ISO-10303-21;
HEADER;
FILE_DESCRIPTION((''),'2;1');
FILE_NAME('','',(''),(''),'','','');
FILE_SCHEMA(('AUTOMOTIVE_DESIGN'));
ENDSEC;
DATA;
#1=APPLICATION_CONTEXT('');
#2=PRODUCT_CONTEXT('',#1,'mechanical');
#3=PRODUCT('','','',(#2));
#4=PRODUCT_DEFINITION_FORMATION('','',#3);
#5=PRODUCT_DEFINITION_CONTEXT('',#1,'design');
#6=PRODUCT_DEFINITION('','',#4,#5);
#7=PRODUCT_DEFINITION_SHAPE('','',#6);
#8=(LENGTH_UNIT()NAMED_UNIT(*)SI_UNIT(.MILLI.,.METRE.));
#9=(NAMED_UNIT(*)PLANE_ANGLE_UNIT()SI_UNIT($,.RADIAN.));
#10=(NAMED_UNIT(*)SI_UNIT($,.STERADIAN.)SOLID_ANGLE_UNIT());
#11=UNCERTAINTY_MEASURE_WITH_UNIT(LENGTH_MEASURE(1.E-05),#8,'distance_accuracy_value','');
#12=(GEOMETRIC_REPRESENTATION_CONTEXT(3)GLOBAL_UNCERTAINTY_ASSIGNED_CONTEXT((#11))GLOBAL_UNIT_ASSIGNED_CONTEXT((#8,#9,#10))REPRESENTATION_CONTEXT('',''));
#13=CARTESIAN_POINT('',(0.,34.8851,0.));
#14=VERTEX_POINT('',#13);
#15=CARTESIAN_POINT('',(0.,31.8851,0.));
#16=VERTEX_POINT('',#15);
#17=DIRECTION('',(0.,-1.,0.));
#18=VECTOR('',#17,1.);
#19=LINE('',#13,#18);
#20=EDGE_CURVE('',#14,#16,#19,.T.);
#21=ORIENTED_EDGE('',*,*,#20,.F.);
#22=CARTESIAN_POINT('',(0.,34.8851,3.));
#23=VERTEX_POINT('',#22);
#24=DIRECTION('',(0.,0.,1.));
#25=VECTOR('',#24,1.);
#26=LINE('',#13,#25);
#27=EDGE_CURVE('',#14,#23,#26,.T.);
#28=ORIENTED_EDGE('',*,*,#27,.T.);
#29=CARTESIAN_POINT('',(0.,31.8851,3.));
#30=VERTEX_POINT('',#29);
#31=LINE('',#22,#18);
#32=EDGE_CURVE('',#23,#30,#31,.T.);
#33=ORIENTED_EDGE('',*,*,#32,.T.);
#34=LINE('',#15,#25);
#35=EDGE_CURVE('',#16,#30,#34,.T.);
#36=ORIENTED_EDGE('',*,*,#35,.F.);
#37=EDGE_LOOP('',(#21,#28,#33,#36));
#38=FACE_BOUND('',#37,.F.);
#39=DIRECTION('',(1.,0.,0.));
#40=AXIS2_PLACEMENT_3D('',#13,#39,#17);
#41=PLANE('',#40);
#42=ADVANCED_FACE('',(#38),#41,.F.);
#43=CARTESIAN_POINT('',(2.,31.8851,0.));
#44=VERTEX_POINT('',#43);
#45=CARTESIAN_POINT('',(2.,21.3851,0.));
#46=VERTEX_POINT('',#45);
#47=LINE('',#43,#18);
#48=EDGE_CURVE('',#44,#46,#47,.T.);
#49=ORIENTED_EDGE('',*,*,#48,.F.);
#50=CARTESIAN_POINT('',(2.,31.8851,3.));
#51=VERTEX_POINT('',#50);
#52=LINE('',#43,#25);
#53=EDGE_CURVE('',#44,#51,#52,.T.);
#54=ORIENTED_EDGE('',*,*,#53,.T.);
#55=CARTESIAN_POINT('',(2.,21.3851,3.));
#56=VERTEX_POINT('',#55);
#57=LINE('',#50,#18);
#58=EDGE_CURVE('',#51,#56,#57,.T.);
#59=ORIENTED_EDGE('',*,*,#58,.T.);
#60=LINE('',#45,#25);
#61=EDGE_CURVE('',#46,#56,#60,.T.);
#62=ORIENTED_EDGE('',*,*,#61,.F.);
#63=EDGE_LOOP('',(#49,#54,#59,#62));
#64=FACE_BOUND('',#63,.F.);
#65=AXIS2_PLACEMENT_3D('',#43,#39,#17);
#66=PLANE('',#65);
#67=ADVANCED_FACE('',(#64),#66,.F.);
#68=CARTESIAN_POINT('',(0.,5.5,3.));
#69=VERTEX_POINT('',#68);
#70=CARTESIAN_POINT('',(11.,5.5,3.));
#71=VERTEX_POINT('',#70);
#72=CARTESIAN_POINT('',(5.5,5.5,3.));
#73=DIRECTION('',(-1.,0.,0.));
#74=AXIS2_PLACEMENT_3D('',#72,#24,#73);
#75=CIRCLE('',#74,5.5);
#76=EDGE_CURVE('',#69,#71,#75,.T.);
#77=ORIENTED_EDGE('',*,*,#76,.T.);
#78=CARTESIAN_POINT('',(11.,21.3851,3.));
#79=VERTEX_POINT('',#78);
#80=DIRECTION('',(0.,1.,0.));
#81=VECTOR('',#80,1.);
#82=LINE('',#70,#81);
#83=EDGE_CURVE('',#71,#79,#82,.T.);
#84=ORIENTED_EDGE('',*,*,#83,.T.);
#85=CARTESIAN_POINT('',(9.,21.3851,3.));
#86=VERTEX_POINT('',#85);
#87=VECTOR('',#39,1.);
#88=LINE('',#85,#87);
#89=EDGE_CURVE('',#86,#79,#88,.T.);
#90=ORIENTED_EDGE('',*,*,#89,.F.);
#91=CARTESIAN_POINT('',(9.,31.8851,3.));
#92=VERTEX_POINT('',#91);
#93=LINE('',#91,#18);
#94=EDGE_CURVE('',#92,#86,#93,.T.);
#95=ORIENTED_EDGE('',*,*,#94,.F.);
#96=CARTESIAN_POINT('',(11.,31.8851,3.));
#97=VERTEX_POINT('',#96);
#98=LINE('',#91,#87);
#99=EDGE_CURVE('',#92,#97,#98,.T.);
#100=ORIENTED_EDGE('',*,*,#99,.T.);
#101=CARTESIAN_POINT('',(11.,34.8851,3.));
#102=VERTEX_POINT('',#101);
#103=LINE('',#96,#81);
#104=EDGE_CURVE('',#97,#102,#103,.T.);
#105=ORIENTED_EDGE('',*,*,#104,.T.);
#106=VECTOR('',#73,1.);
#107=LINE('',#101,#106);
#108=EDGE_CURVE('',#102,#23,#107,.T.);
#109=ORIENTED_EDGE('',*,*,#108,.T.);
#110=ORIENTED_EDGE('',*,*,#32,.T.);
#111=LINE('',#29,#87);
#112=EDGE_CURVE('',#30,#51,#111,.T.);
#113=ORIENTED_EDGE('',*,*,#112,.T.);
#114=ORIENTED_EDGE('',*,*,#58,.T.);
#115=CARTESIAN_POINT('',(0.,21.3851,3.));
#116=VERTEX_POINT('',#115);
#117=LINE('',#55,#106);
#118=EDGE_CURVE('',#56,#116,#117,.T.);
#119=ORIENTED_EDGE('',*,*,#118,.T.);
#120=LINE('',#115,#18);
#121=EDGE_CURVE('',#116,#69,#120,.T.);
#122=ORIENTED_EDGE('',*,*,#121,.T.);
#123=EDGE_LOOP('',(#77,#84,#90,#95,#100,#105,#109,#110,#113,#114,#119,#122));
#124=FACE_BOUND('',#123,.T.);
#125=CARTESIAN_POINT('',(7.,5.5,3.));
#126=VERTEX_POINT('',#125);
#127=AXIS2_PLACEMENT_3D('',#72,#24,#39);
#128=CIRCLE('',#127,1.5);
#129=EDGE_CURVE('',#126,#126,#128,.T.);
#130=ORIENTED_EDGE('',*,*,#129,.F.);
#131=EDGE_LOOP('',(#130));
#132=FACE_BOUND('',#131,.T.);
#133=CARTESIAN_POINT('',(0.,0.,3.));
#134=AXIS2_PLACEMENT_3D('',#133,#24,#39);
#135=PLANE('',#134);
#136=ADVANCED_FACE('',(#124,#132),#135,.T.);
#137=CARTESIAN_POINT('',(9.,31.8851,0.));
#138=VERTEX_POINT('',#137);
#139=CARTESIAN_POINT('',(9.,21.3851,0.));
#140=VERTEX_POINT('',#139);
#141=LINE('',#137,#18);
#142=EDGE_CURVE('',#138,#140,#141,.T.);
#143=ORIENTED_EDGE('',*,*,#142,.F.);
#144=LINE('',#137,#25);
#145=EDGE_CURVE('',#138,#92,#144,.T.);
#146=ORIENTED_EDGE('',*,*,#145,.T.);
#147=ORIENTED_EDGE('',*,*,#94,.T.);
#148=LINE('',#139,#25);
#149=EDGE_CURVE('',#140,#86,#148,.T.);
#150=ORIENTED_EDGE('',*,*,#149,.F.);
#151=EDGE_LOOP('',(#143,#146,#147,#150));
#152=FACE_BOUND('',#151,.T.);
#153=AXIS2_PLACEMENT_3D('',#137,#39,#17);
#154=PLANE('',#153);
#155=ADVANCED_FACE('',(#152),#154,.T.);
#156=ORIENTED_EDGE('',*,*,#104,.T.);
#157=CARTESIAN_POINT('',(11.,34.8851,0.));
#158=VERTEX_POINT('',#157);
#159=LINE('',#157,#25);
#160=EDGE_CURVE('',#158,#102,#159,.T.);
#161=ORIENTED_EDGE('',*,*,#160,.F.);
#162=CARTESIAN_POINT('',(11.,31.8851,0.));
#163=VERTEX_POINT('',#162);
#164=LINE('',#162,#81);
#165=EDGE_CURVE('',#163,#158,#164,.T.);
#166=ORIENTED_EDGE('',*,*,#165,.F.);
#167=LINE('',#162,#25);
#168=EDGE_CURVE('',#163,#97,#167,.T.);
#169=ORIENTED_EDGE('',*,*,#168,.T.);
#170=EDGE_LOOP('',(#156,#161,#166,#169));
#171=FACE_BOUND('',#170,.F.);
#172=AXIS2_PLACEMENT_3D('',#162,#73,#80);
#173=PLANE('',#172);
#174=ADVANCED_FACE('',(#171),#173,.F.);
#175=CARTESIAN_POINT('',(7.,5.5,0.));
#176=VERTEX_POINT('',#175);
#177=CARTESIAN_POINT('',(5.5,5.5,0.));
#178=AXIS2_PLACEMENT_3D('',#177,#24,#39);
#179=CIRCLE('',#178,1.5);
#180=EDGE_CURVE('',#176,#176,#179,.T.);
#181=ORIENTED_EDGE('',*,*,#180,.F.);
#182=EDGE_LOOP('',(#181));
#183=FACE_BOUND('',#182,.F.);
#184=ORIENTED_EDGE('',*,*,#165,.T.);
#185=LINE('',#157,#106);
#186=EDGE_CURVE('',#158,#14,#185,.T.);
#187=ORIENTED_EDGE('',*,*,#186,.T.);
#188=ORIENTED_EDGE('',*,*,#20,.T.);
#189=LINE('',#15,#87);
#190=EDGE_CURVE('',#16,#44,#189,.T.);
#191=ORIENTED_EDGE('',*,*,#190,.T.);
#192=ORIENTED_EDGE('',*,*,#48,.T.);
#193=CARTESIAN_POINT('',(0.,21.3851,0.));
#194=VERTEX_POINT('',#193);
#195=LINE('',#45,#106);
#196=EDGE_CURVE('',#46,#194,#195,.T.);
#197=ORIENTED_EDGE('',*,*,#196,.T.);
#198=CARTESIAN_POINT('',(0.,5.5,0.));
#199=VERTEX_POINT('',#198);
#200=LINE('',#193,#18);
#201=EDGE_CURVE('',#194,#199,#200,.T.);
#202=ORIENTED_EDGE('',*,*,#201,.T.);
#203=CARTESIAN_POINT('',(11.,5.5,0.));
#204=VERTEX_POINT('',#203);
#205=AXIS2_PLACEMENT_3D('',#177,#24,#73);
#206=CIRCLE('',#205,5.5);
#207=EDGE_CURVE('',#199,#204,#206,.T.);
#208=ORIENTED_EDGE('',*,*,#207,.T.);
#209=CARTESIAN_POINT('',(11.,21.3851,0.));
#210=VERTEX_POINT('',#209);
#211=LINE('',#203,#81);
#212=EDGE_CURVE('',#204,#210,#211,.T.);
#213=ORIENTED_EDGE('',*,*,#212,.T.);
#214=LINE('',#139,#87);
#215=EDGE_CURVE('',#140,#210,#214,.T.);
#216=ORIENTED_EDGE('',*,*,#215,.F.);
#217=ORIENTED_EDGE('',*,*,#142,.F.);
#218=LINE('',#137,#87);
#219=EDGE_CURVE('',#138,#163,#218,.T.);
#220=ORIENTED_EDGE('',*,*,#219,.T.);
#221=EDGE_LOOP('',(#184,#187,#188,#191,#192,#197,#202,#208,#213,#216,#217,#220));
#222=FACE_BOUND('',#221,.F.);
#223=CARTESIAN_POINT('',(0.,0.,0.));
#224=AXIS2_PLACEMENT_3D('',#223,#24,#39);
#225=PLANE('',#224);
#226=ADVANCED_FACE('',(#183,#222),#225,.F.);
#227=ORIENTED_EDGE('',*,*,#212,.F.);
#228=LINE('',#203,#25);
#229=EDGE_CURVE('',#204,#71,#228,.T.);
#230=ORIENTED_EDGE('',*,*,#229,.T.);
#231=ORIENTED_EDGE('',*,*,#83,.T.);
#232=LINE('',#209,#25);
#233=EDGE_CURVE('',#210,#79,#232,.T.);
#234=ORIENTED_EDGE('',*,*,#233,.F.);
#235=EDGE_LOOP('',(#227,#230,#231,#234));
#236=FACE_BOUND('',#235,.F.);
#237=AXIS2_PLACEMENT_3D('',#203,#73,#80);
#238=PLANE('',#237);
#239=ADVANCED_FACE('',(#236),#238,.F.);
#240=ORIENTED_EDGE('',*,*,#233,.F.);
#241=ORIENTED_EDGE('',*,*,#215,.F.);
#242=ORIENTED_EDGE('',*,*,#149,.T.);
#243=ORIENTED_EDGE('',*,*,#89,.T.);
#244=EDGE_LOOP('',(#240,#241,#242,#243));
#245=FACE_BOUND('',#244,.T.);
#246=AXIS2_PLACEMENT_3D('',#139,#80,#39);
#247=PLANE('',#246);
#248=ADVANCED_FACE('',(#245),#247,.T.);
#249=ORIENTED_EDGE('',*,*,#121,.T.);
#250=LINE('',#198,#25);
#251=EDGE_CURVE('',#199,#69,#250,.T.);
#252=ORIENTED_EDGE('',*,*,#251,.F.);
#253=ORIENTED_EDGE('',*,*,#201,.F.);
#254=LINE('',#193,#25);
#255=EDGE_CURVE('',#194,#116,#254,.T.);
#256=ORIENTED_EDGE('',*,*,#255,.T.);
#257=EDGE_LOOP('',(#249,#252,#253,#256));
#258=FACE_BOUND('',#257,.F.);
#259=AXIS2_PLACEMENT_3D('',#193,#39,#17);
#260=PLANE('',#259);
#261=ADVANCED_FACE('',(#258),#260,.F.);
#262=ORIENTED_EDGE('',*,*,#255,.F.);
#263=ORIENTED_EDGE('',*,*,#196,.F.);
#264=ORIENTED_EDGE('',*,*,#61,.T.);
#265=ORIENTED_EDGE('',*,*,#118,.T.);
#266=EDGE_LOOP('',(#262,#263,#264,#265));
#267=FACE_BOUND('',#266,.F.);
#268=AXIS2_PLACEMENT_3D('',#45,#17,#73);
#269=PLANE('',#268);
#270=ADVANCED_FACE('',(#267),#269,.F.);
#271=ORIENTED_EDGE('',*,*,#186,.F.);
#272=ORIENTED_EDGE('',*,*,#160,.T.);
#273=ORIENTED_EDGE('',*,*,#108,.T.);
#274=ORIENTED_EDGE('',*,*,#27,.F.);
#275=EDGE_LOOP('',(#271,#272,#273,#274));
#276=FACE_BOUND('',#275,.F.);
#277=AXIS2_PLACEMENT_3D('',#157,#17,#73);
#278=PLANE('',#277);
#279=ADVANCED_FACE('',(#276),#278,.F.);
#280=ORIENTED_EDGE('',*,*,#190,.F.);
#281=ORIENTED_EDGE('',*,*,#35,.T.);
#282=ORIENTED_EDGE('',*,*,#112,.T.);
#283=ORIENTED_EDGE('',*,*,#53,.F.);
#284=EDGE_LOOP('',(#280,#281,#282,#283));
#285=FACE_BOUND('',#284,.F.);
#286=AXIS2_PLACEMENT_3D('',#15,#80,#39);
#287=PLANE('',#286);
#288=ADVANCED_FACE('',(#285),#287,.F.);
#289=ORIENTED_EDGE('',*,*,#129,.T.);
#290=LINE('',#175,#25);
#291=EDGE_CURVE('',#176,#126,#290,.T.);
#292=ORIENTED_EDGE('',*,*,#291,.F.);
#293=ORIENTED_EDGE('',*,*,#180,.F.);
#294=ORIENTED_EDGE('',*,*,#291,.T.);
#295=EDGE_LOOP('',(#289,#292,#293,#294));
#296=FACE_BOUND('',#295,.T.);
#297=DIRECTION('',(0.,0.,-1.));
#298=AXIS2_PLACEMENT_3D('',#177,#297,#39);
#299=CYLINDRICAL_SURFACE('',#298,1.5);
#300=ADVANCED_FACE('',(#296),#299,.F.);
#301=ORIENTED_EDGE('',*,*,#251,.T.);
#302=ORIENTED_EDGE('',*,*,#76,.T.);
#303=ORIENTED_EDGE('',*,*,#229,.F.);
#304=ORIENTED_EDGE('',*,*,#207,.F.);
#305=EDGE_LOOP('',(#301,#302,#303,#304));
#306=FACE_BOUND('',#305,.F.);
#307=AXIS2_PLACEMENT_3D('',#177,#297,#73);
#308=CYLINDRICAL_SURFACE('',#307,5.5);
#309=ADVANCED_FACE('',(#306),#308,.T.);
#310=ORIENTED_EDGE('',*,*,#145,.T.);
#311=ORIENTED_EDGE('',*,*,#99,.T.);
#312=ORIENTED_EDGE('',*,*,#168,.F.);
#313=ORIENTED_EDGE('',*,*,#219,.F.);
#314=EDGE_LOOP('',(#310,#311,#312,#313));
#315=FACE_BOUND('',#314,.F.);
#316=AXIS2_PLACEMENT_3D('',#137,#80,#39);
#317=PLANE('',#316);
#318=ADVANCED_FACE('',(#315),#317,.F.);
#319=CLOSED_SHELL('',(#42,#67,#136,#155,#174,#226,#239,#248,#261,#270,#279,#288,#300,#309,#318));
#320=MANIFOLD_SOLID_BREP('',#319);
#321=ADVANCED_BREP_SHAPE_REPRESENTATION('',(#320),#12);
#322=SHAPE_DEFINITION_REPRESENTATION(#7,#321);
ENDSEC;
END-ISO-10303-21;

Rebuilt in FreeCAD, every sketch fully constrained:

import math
import FreeCAD as App
import Part
import Sketcher

V = App.Vector

doc = App.newDocument("Part")
body = doc.addObject("PartDesign::Body", "Body")

# Sketch on XY plane
sketch1 = body.newObject("Sketcher::SketchObject", "Sketch")
sketch1.AttachmentSupport = (doc.getObject("XY_Plane"), [""])
sketch1.MapMode = "FlatFace"
sketch1.addGeometry(Part.LineSegment(V(11, 31.8851, 0), V(11, 34.8851, 0)), False)
sketch1.addGeometry(Part.LineSegment(V(11, 34.8851, 0), V(0, 34.8851, 0)), False)
sketch1.addGeometry(Part.LineSegment(V(0, 34.8851, 0), V(0, 31.8851, 0)), False)
sketch1.addGeometry(Part.LineSegment(V(0, 31.8851, 0), V(2, 31.8851, 0)), False)
sketch1.addGeometry(Part.LineSegment(V(2, 31.8851, 0), V(2, 21.3851, 0)), False)
sketch1.addGeometry(Part.LineSegment(V(2, 21.3851, 0), V(0, 21.3851, 0)), False)
sketch1.addGeometry(Part.LineSegment(V(0, 21.3851, 0), V(0, 5.5, 0)), False)
sketch1.addGeometry(Part.ArcOfCircle(Part.Circle(V(5.5, 5.5, 0), V(0, 0, 1), 5.5), math.radians(180), math.radians(360)), False)
sketch1.addGeometry(Part.LineSegment(V(11, 5.5, 0), V(11, 21.3851, 0)), False)
sketch1.addGeometry(Part.LineSegment(V(11, 21.3851, 0), V(9, 21.3851, 0)), False)
sketch1.addGeometry(Part.LineSegment(V(9, 21.3851, 0), V(9, 31.8851, 0)), False)
sketch1.addGeometry(Part.LineSegment(V(9, 31.8851, 0), V(11, 31.8851, 0)), False)
sketch1.addGeometry(Part.Circle(V(5.5, 5.5, 0), V(0, 0, 1), 1.5), False)
sketch1.addConstraint(Sketcher.Constraint("Coincident", 0, 2, 1, 1))
sketch1.addConstraint(Sketcher.Constraint("Coincident", 1, 2, 2, 1))
sketch1.addConstraint(Sketcher.Constraint("Coincident", 2, 2, 3, 1))
sketch1.addConstraint(Sketcher.Constraint("Coincident", 3, 2, 4, 1))
sketch1.addConstraint(Sketcher.Constraint("Coincident", 4, 2, 5, 1))
sketch1.addConstraint(Sketcher.Constraint("Coincident", 5, 2, 6, 1))
sketch1.addConstraint(Sketcher.Constraint("Tangent", 6, 2, 7, 1))
sketch1.addConstraint(Sketcher.Constraint("Tangent", 7, 2, 8, 1))
sketch1.addConstraint(Sketcher.Constraint("Coincident", 8, 2, 9, 1))
sketch1.addConstraint(Sketcher.Constraint("Coincident", 9, 2, 10, 1))
sketch1.addConstraint(Sketcher.Constraint("Coincident", 10, 2, 11, 1))
sketch1.addConstraint(Sketcher.Constraint("Coincident", 11, 2, 0, 1))
sketch1.addConstraint(Sketcher.Constraint("Vertical", 0))
sketch1.addConstraint(Sketcher.Constraint("Horizontal", 1))
sketch1.addConstraint(Sketcher.Constraint("Vertical", 2))
sketch1.addConstraint(Sketcher.Constraint("Horizontal", 3))
sketch1.addConstraint(Sketcher.Constraint("Vertical", 4))
sketch1.addConstraint(Sketcher.Constraint("Horizontal", 5))
sketch1.addConstraint(Sketcher.Constraint("Vertical", 6))
sketch1.addConstraint(Sketcher.Constraint("Vertical", 8))
sketch1.addConstraint(Sketcher.Constraint("Horizontal", 9))
sketch1.addConstraint(Sketcher.Constraint("Vertical", 10))
sketch1.addConstraint(Sketcher.Constraint("Horizontal", 11))
sketch1.addConstraint(Sketcher.Constraint("Coincident", 12, 3, 7, 3))
sketch1.addConstraint(Sketcher.Constraint("PointOnObject", 1, 2, -2))
sketch1.addConstraint(Sketcher.Constraint("PointOnObject", 5, 2, -2))
sketch1.addConstraint(Sketcher.Constraint("Horizontal", 5, 2, 8, 2))
sketch1.addConstraint(Sketcher.Constraint("Horizontal", 3, 2, 10, 2))
sketch1.addConstraint(Sketcher.Constraint("Vertical", 0, 2, 7, 2))
sketch1.addConstraint(Sketcher.Constraint("Equal", 5, 9))
sketch1.addConstraint(Sketcher.Constraint("Diameter", 12, 3.0))
sketch1.addConstraint(Sketcher.Constraint("Radius", 7, 5.5))
sketch1.addConstraint(Sketcher.Constraint("DistanceX", 3, 1, 3, 2, 2.0))
sketch1.addConstraint(Sketcher.Constraint("DistanceY", 0, 1, 0, 2, 3.0))
sketch1.addConstraint(Sketcher.Constraint("DistanceY", 4, 2, 4, 1, 10.5))
sketch1.addConstraint(Sketcher.Constraint("DistanceY", 6, 2, 6, 1, 15.885))
sketch1.addConstraint(Sketcher.Constraint("DistanceY", -1, 1, 7, 3, 5.5))
pad1 = body.newObject("PartDesign::Pad", "Pad")
pad1.Profile = sketch1
pad1.Length = 3

doc.recompute()
